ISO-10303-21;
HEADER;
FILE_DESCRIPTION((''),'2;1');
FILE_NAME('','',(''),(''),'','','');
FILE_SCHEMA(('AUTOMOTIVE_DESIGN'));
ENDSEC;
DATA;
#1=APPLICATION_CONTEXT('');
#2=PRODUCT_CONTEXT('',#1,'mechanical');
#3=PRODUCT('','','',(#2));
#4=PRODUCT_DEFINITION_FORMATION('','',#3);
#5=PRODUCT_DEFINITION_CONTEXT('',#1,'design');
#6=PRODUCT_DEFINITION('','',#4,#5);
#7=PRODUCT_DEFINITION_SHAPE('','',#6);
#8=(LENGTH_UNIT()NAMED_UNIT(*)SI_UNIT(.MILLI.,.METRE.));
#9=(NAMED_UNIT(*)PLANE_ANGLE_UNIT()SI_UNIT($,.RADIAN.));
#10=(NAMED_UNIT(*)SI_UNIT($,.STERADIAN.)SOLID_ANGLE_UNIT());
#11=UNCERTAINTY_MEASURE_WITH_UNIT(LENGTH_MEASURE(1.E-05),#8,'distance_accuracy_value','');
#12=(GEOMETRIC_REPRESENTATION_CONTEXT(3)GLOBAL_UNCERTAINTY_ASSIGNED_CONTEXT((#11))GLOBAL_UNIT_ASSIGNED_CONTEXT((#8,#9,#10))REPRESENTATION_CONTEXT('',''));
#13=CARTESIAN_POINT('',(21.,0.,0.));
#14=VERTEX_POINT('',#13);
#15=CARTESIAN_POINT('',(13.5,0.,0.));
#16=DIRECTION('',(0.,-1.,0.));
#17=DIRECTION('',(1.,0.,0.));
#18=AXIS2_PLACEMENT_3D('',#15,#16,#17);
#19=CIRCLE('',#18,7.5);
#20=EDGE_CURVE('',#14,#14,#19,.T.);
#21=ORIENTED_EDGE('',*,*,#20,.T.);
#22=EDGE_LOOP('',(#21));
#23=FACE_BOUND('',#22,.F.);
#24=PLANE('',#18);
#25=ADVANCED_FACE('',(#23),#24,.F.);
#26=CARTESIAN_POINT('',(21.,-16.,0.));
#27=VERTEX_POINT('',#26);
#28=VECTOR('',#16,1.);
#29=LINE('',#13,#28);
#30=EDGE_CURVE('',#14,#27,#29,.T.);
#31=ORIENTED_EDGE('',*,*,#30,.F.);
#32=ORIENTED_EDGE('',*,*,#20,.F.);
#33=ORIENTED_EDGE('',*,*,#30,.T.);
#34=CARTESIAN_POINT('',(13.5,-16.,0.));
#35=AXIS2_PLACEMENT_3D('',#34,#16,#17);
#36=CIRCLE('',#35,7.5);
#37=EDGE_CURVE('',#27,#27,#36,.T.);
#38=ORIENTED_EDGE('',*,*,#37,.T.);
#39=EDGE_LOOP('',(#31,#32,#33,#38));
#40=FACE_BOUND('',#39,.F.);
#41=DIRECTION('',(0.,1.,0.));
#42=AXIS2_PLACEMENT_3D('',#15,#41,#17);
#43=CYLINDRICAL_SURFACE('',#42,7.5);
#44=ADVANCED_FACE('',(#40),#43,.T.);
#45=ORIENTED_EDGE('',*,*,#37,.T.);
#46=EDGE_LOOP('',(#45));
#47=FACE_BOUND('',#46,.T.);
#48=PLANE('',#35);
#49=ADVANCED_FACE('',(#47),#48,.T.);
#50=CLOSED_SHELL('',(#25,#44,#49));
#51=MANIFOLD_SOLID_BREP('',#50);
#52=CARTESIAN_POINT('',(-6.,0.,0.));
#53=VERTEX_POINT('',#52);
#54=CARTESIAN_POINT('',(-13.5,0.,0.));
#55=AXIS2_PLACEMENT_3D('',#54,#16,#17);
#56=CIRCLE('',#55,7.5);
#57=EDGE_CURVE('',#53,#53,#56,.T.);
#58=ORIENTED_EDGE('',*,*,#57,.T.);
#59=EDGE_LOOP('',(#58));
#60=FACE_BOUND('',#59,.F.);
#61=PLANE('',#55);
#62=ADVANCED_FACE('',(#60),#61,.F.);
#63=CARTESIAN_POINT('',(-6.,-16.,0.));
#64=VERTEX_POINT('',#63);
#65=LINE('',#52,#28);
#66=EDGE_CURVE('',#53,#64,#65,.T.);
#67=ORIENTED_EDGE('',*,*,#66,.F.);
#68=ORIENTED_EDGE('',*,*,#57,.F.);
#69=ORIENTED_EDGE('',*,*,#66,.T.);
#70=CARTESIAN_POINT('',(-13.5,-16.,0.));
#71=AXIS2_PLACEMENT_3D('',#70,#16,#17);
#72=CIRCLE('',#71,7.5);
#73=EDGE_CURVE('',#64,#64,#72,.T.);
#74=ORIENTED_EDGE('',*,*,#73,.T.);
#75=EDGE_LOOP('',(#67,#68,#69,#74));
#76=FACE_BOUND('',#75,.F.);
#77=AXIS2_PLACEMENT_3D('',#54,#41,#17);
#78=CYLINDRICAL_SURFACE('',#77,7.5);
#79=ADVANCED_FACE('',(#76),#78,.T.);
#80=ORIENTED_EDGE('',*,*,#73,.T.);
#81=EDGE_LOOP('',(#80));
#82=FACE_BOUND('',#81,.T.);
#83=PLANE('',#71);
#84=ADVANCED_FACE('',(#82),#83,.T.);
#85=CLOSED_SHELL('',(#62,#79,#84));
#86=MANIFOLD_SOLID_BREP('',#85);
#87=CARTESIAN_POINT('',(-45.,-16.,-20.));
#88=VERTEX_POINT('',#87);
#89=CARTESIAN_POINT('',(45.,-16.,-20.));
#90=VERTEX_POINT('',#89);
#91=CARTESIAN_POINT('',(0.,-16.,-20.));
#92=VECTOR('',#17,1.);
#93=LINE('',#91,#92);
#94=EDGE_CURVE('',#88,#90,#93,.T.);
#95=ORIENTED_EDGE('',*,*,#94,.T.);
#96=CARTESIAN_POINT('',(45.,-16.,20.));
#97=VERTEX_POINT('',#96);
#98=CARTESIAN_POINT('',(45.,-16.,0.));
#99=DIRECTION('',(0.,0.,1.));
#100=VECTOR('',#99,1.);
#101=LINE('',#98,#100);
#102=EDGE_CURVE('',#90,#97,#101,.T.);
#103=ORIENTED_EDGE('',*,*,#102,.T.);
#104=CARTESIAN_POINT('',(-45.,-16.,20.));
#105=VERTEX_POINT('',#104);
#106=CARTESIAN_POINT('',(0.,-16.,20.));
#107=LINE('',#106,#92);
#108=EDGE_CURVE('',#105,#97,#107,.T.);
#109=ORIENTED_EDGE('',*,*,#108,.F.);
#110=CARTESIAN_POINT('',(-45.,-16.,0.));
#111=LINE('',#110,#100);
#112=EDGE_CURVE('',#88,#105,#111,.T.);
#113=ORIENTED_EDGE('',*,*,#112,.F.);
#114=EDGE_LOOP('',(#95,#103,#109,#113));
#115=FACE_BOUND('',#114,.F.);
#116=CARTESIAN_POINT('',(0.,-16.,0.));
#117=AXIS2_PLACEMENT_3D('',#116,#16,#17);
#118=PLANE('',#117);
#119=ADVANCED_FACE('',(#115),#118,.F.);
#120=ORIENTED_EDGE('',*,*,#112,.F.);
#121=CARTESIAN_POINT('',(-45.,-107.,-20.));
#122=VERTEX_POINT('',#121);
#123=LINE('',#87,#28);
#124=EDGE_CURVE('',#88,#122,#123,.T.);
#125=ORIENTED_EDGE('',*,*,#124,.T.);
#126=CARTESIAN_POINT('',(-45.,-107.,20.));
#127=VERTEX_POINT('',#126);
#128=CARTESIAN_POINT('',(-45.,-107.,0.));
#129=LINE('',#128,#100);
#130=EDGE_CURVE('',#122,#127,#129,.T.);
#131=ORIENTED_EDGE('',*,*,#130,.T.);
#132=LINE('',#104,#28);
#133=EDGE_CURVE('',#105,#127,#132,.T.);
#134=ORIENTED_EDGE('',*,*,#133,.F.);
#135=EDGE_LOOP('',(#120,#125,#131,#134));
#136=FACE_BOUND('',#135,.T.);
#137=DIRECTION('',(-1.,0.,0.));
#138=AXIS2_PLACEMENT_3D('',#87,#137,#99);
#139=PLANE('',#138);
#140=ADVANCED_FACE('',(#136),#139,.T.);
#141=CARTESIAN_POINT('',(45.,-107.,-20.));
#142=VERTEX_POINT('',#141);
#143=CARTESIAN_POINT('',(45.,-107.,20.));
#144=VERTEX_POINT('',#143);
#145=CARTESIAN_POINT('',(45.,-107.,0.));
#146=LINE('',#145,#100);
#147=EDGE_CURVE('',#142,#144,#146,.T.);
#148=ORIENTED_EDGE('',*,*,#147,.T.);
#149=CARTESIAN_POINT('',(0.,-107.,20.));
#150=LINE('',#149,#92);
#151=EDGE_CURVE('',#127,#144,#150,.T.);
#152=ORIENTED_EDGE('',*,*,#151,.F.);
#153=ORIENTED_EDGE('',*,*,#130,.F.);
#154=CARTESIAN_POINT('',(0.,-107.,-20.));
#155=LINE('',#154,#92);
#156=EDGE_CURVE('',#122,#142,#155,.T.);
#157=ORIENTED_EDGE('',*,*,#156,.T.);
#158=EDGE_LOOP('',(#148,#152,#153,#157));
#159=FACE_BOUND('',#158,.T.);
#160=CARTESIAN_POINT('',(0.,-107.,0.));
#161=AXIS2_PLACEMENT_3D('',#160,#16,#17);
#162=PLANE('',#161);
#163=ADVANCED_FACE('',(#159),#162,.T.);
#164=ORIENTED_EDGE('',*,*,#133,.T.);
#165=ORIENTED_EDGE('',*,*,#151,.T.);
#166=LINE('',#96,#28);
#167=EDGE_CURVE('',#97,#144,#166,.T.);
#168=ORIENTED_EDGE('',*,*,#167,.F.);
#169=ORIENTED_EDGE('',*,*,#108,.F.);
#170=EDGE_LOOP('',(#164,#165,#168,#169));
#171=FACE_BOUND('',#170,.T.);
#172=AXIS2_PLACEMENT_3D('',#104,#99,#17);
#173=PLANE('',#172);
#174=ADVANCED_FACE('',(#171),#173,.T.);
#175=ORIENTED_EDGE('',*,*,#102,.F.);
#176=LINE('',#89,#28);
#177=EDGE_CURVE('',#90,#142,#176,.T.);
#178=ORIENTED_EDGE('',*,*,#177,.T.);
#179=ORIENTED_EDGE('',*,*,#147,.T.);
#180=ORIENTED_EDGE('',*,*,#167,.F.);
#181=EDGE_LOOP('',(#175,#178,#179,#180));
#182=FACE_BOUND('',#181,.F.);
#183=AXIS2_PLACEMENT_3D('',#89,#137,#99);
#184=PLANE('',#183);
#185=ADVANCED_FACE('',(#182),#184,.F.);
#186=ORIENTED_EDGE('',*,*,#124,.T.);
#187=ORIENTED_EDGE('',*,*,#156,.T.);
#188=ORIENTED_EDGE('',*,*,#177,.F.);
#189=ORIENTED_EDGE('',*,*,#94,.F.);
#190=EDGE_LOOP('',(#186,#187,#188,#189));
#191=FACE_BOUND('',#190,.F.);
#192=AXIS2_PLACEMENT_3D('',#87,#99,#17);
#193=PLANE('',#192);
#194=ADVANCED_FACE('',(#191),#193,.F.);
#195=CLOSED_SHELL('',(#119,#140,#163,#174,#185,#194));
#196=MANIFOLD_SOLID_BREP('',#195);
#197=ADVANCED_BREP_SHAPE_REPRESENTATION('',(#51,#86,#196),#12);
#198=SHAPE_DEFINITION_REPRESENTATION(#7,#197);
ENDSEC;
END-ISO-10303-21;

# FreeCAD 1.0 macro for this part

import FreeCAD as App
import Part
import Sketcher


def add_polygon(sketch, points):
    """Adds a closed chain of lines whose ends are joined by coincident constraints."""
    first, n = sketch.GeometryCount, len(points)
    for a, b in zip(points, points[1:] + points[:1]):
        sketch.addGeometry(Part.LineSegment(App.Vector(*a, 0), App.Vector(*b, 0)), False)
    for i in range(n):
        sketch.addConstraint(Sketcher.Constraint("Coincident", first + i, 2, first + (i + 1) % n, 1))

doc = App.newDocument("Part")
body = doc.addObject("PartDesign::Body", "Body")
body.AllowCompound = True

sketch1 = body.newObject("Sketcher::SketchObject", "Sketch")
sketch1.AttachmentSupport = (doc.getObject("XZ_Plane"), [""])
sketch1.MapMode = "FlatFace"
sketch1.addGeometry([
    Part.Circle(App.Vector(-13.5, 0, 0), App.Vector(0, 0, 1), 7.5),
    Part.Circle(App.Vector(13.5, 0, 0), App.Vector(0, 0, 1), 7.5),
], False)
sketch1.addConstraint([
    Sketcher.Constraint("Equal", 0, 1),
    Sketcher.Constraint("Symmetric", 0, 3, 1, 3, -1, 1),
    Sketcher.Constraint("PointOnObject", 0, 3, -1),
    Sketcher.Constraint("Diameter", 0, 15.0),
    Sketcher.Constraint("DistanceX", 0, 3, 1, 3, 27.0),
])
pad1 = body.newObject("PartDesign::Pad", "Pad")
pad1.Profile = sketch1
pad1.Length = 16
body2 = doc.addObject("PartDesign::Body", "Body001")

sketch2 = body2.newObject("Sketcher::SketchObject", "Sketch001")
sketch2.AttachmentSupport = (doc.getObject("XZ_Plane001"), [""])
sketch2.MapMode = "FlatFace"
sketch2.AttachmentOffset = App.Placement(App.Vector(0, 0, 16), App.Rotation())
add_polygon(sketch2, [(-45, 20), (-45, -20), (45, -20), (45, 20)])
sketch2.addConstraint([
    Sketcher.Constraint("Vertical", 0),
    Sketcher.Constraint("Horizontal", 1),
    Sketcher.Constraint("Vertical", 2),
    Sketcher.Constraint("Horizontal", 3),
    Sketcher.Constraint("Symmetric", 0, 2, 2, 2, -1, 1),
    Sketcher.Constraint("DistanceX", 1, 1, 1, 2, 90.0),
    Sketcher.Constraint("DistanceY", 0, 2, 0, 1, 40.0),
])
pad2 = body2.newObject("PartDesign::Pad", "Pad001")
pad2.Profile = sketch2
pad2.Length = 91

doc.recompute()
